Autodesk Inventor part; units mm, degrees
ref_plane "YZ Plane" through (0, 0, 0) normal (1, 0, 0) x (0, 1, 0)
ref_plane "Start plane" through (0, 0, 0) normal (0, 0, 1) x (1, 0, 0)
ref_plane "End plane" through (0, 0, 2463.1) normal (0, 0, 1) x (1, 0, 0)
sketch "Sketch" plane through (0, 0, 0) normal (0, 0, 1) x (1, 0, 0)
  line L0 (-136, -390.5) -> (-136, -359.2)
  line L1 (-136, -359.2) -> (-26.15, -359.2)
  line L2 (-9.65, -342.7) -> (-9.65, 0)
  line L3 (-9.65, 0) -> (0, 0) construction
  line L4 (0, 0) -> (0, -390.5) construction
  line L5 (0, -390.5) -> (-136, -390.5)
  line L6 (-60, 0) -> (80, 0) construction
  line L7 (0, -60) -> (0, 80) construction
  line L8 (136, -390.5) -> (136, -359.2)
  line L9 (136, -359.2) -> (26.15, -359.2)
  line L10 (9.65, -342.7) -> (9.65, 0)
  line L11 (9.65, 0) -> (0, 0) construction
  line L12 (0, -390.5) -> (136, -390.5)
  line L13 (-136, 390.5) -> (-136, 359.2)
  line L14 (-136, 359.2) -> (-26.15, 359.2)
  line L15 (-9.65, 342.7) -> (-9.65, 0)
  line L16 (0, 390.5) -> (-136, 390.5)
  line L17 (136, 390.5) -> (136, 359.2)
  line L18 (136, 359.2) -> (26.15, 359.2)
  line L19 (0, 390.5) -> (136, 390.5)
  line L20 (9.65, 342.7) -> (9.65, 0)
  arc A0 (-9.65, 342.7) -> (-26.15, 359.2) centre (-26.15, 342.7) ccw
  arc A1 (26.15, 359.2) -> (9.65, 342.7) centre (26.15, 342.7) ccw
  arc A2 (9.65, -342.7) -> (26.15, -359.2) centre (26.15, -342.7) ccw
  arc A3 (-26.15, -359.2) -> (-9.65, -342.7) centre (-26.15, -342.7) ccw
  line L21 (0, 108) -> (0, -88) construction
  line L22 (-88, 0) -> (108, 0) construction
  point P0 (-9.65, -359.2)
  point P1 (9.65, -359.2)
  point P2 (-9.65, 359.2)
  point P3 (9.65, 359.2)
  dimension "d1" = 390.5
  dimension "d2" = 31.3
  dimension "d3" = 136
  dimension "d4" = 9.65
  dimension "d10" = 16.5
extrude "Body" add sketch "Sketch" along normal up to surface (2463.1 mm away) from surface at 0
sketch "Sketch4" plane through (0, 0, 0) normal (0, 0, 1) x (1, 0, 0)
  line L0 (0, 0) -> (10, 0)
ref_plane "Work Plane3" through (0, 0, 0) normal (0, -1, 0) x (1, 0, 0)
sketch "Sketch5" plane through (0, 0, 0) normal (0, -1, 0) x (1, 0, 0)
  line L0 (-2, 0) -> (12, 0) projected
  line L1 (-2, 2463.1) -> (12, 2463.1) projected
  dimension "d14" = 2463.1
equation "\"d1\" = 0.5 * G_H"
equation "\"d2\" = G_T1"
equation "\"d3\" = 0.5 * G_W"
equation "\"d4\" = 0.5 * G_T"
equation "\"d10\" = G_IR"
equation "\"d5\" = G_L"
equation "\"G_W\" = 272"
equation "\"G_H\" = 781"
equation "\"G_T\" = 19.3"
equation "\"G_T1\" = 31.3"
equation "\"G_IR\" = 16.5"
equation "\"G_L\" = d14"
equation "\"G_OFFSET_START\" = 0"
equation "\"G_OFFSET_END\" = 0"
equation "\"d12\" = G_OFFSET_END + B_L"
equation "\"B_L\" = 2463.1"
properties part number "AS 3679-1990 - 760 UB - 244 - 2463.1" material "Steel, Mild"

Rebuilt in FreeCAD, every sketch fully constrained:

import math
import FreeCAD as App
import Part
import Sketcher
Q = App.Units.Quantity

doc = App.newDocument("Part")
body = doc.addObject("PartDesign::Body", "Body")

sketch1 = body.newObject("Sketcher::SketchObject", "Sketch")
sketch1.AttachmentSupport = (doc.getObject("XY_Plane"), [""])
sketch1.MapMode = "FlatFace"
sketch1.addGeometry([
    Part.LineSegment(App.Vector(-136, -359.2, 0), App.Vector(-136, -390.5, 0)),
    Part.LineSegment(App.Vector(-136, -390.5, 0), App.Vector(136, -390.5, 0)),
    Part.LineSegment(App.Vector(136, -390.5, 0), App.Vector(136, -359.2, 0)),
    Part.LineSegment(App.Vector(136, -359.2, 0), App.Vector(26.15, -359.2, 0)),
    Part.ArcOfCircle(Part.Circle(App.Vector(26.15, -342.7, 0), App.Vector(0, 0, 1), 16.5), math.radians(180), math.radians(270)),
    Part.LineSegment(App.Vector(9.65, -342.7, 0), App.Vector(9.65, 342.7, 0)),
    Part.ArcOfCircle(Part.Circle(App.Vector(26.15, 342.7, 0), App.Vector(0, 0, 1), 16.5), math.radians(90), math.radians(180)),
    Part.LineSegment(App.Vector(26.15, 359.2, 0), App.Vector(136, 359.2, 0)),
    Part.LineSegment(App.Vector(136, 359.2, 0), App.Vector(136, 390.5, 0)),
    Part.LineSegment(App.Vector(136, 390.5, 0), App.Vector(-136, 390.5, 0)),
    Part.LineSegment(App.Vector(-136, 390.5, 0), App.Vector(-136, 359.2, 0)),
    Part.LineSegment(App.Vector(-136, 359.2, 0), App.Vector(-26.15, 359.2, 0)),
    Part.ArcOfCircle(Part.Circle(App.Vector(-26.15, 342.7, 0), App.Vector(0, 0, 1), 16.5), math.radians(0), math.radians(90)),
    Part.LineSegment(App.Vector(-9.65, 342.7, 0), App.Vector(-9.65, -342.7, 0)),
    Part.ArcOfCircle(Part.Circle(App.Vector(-26.15, -342.7, 0), App.Vector(0, 0, 1), 16.5), math.radians(-90), math.radians(0)),
    Part.LineSegment(App.Vector(-26.15, -359.2, 0), App.Vector(-136, -359.2, 0)),
], False)
sketch1.addConstraint([
    Sketcher.Constraint("Coincident", 0, 2, 1, 1),
    Sketcher.Constraint("Coincident", 1, 2, 2, 1),
    Sketcher.Constraint("Coincident", 2, 2, 3, 1),
    Sketcher.Constraint("Tangent", 3, 2, 4, 2),
    Sketcher.Constraint("Tangent", 4, 1, 5, 1),
    Sketcher.Constraint("Tangent", 5, 2, 6, 2),
    Sketcher.Constraint("Tangent", 6, 1, 7, 1),
    Sketcher.Constraint("Coincident", 7, 2, 8, 1),
    Sketcher.Constraint("Coincident", 8, 2, 9, 1),
    Sketcher.Constraint("Coincident", 9, 2, 10, 1),
    Sketcher.Constraint("Coincident", 10, 2, 11, 1),
    Sketcher.Constraint("Tangent", 11, 2, 12, 2),
    Sketcher.Constraint("Tangent", 12, 1, 13, 1),
    Sketcher.Constraint("Tangent", 13, 2, 14, 2),
    Sketcher.Constraint("Tangent", 14, 1, 15, 1),
    Sketcher.Constraint("Coincident", 15, 2, 0, 1),
    Sketcher.Constraint("Vertical", 0),
    Sketcher.Constraint("Horizontal", 1),
    Sketcher.Constraint("Vertical", 2),
    Sketcher.Constraint("Horizontal", 3),
    Sketcher.Constraint("Vertical", 5),
    Sketcher.Constraint("Horizontal", 7),
    Sketcher.Constraint("Vertical", 8),
    Sketcher.Constraint("Horizontal", 9),
    Sketcher.Constraint("Vertical", 10),
    Sketcher.Constraint("Horizontal", 11),
    Sketcher.Constraint("Vertical", 13),
    Sketcher.Constraint("Horizontal", 15),
    Sketcher.Constraint("Equal", 4, 6),
    Sketcher.Constraint("Equal", 6, 12),
    Sketcher.Constraint("Equal", 12, 14),
    Sketcher.Constraint("Symmetric", 4, 3, 12, 3, -1, 1),
    Sketcher.Constraint("Symmetric", 0, 2, 8, 2, -1, 1),
    Sketcher.Constraint("Symmetric", 7, 2, 10, 2, -2),
    Sketcher.Constraint("Symmetric", 2, 2, 15, 2, -2),
    Sketcher.Constraint("Radius", 4, Q("16.5 mm")),
    Sketcher.Constraint("DistanceY", 0, 2, 0, 1, Q("31.3 mm")),
    Sketcher.Constraint("DistanceX", 0, 2, -1, 1, Q("136 mm")),
    Sketcher.Constraint("DistanceY", 0, 2, -1, 1, Q("390.5 mm")),
    Sketcher.Constraint("DistanceX", -1, 1, 4, 1, Q("9.65 mm")),
])
pad1 = body.newObject("PartDesign::Pad", "Pad")
pad1.Profile = sketch1
pad1.Length = 2463.1

doc.recompute()
